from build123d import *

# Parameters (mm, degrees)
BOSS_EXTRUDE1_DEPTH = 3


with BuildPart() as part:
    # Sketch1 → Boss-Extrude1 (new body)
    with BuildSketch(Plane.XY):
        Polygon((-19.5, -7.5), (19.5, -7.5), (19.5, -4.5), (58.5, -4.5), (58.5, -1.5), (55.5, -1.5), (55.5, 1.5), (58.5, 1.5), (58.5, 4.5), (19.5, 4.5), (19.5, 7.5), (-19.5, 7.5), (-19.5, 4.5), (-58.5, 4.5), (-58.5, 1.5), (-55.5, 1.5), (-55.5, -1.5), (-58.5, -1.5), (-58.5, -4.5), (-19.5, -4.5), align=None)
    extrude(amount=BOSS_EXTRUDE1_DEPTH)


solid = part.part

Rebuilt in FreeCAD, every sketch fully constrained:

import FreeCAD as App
import Part
import Sketcher

V = App.Vector


def add_polygon(sketch, points):
    """Adds a closed chain of lines whose ends are joined by coincident constraints."""
    first, n = sketch.GeometryCount, len(points)
    for a, b in zip(points, points[1:] + points[:1]):
        sketch.addGeometry(Part.LineSegment(App.Vector(*a, 0), App.Vector(*b, 0)), False)
    for i in range(n):
        sketch.addConstraint(Sketcher.Constraint("Coincident", first + i, 2, first + (i + 1) % n, 1))

doc = App.newDocument("Part")
body = doc.addObject("PartDesign::Body", "Body")

sketch1 = body.newObject("Sketcher::SketchObject", "Sketch")
sketch1.AttachmentSupport = (doc.getObject("XY_Plane"), [""])
sketch1.MapMode = "FlatFace"
add_polygon(sketch1, [(-19.5, -7.5), (19.5, -7.5), (19.5, -4.5), (58.5, -4.5), (58.5, -1.5), (55.5, -1.5), (55.5, 1.5), (58.5, 1.5), (58.5, 4.5), (19.5, 4.5), (19.5, 7.5), (-19.5, 7.5), (-19.5, 4.5), (-58.5, 4.5), (-58.5, 1.5), (-55.5, 1.5), (-55.5, -1.5), (-58.5, -1.5), (-58.5, -4.5), (-19.5, -4.5)])
sketch1.addConstraint([
    Sketcher.Constraint("Horizontal", 0),
    Sketcher.Constraint("Vertical", 1),
    Sketcher.Constraint("Horizontal", 2),
    Sketcher.Constraint("Vertical", 3),
    Sketcher.Constraint("Horizontal", 4),
    Sketcher.Constraint("Vertical", 5),
    Sketcher.Constraint("Horizontal", 6),
    Sketcher.Constraint("Vertical", 7),
    Sketcher.Constraint("Horizontal", 8),
    Sketcher.Constraint("Vertical", 9),
    Sketcher.Constraint("Horizontal", 10),
    Sketcher.Constraint("Vertical", 11),
    Sketcher.Constraint("Horizontal", 12),
    Sketcher.Constraint("Vertical", 13),
    Sketcher.Constraint("Horizontal", 14),
    Sketcher.Constraint("Vertical", 15),
    Sketcher.Constraint("Horizontal", 16),
    Sketcher.Constraint("Vertical", 17),
    Sketcher.Constraint("Horizontal", 18),
    Sketcher.Constraint("Vertical", 19),
    Sketcher.Constraint("Symmetric", 0, 2, 10, 2, -1, 1),
    Sketcher.Constraint("Symmetric", 2, 2, 12, 2, -1, 1),
    Sketcher.Constraint("Symmetric", 4, 2, 14, 2, -1, 1),
    Sketcher.Constraint("Symmetric", 6, 2, 16, 2, -1, 1),
    Sketcher.Constraint("Symmetric", 8, 2, 18, 2, -1, 1),
    Sketcher.Constraint("Symmetric", 8, 2, 11, 2, -2),
    Sketcher.Constraint("Symmetric", 6, 2, 13, 2, -2),
    Sketcher.Constraint("Equal", 0, 2),
    Sketcher.Constraint("Equal", 16, 1),
    Sketcher.Constraint("Equal", 1, 3),
    Sketcher.Constraint("Equal", 3, 5),
    Sketcher.Constraint("DistanceX", 0, 1, 0, 2, 39.0),
    Sketcher.Constraint("DistanceX", 4, 2, 4, 1, 3.0),
])
pad1 = body.newObject("PartDesign::Pad", "Pad")
pad1.Profile = sketch1
pad1.Length = 3

doc.recompute()
